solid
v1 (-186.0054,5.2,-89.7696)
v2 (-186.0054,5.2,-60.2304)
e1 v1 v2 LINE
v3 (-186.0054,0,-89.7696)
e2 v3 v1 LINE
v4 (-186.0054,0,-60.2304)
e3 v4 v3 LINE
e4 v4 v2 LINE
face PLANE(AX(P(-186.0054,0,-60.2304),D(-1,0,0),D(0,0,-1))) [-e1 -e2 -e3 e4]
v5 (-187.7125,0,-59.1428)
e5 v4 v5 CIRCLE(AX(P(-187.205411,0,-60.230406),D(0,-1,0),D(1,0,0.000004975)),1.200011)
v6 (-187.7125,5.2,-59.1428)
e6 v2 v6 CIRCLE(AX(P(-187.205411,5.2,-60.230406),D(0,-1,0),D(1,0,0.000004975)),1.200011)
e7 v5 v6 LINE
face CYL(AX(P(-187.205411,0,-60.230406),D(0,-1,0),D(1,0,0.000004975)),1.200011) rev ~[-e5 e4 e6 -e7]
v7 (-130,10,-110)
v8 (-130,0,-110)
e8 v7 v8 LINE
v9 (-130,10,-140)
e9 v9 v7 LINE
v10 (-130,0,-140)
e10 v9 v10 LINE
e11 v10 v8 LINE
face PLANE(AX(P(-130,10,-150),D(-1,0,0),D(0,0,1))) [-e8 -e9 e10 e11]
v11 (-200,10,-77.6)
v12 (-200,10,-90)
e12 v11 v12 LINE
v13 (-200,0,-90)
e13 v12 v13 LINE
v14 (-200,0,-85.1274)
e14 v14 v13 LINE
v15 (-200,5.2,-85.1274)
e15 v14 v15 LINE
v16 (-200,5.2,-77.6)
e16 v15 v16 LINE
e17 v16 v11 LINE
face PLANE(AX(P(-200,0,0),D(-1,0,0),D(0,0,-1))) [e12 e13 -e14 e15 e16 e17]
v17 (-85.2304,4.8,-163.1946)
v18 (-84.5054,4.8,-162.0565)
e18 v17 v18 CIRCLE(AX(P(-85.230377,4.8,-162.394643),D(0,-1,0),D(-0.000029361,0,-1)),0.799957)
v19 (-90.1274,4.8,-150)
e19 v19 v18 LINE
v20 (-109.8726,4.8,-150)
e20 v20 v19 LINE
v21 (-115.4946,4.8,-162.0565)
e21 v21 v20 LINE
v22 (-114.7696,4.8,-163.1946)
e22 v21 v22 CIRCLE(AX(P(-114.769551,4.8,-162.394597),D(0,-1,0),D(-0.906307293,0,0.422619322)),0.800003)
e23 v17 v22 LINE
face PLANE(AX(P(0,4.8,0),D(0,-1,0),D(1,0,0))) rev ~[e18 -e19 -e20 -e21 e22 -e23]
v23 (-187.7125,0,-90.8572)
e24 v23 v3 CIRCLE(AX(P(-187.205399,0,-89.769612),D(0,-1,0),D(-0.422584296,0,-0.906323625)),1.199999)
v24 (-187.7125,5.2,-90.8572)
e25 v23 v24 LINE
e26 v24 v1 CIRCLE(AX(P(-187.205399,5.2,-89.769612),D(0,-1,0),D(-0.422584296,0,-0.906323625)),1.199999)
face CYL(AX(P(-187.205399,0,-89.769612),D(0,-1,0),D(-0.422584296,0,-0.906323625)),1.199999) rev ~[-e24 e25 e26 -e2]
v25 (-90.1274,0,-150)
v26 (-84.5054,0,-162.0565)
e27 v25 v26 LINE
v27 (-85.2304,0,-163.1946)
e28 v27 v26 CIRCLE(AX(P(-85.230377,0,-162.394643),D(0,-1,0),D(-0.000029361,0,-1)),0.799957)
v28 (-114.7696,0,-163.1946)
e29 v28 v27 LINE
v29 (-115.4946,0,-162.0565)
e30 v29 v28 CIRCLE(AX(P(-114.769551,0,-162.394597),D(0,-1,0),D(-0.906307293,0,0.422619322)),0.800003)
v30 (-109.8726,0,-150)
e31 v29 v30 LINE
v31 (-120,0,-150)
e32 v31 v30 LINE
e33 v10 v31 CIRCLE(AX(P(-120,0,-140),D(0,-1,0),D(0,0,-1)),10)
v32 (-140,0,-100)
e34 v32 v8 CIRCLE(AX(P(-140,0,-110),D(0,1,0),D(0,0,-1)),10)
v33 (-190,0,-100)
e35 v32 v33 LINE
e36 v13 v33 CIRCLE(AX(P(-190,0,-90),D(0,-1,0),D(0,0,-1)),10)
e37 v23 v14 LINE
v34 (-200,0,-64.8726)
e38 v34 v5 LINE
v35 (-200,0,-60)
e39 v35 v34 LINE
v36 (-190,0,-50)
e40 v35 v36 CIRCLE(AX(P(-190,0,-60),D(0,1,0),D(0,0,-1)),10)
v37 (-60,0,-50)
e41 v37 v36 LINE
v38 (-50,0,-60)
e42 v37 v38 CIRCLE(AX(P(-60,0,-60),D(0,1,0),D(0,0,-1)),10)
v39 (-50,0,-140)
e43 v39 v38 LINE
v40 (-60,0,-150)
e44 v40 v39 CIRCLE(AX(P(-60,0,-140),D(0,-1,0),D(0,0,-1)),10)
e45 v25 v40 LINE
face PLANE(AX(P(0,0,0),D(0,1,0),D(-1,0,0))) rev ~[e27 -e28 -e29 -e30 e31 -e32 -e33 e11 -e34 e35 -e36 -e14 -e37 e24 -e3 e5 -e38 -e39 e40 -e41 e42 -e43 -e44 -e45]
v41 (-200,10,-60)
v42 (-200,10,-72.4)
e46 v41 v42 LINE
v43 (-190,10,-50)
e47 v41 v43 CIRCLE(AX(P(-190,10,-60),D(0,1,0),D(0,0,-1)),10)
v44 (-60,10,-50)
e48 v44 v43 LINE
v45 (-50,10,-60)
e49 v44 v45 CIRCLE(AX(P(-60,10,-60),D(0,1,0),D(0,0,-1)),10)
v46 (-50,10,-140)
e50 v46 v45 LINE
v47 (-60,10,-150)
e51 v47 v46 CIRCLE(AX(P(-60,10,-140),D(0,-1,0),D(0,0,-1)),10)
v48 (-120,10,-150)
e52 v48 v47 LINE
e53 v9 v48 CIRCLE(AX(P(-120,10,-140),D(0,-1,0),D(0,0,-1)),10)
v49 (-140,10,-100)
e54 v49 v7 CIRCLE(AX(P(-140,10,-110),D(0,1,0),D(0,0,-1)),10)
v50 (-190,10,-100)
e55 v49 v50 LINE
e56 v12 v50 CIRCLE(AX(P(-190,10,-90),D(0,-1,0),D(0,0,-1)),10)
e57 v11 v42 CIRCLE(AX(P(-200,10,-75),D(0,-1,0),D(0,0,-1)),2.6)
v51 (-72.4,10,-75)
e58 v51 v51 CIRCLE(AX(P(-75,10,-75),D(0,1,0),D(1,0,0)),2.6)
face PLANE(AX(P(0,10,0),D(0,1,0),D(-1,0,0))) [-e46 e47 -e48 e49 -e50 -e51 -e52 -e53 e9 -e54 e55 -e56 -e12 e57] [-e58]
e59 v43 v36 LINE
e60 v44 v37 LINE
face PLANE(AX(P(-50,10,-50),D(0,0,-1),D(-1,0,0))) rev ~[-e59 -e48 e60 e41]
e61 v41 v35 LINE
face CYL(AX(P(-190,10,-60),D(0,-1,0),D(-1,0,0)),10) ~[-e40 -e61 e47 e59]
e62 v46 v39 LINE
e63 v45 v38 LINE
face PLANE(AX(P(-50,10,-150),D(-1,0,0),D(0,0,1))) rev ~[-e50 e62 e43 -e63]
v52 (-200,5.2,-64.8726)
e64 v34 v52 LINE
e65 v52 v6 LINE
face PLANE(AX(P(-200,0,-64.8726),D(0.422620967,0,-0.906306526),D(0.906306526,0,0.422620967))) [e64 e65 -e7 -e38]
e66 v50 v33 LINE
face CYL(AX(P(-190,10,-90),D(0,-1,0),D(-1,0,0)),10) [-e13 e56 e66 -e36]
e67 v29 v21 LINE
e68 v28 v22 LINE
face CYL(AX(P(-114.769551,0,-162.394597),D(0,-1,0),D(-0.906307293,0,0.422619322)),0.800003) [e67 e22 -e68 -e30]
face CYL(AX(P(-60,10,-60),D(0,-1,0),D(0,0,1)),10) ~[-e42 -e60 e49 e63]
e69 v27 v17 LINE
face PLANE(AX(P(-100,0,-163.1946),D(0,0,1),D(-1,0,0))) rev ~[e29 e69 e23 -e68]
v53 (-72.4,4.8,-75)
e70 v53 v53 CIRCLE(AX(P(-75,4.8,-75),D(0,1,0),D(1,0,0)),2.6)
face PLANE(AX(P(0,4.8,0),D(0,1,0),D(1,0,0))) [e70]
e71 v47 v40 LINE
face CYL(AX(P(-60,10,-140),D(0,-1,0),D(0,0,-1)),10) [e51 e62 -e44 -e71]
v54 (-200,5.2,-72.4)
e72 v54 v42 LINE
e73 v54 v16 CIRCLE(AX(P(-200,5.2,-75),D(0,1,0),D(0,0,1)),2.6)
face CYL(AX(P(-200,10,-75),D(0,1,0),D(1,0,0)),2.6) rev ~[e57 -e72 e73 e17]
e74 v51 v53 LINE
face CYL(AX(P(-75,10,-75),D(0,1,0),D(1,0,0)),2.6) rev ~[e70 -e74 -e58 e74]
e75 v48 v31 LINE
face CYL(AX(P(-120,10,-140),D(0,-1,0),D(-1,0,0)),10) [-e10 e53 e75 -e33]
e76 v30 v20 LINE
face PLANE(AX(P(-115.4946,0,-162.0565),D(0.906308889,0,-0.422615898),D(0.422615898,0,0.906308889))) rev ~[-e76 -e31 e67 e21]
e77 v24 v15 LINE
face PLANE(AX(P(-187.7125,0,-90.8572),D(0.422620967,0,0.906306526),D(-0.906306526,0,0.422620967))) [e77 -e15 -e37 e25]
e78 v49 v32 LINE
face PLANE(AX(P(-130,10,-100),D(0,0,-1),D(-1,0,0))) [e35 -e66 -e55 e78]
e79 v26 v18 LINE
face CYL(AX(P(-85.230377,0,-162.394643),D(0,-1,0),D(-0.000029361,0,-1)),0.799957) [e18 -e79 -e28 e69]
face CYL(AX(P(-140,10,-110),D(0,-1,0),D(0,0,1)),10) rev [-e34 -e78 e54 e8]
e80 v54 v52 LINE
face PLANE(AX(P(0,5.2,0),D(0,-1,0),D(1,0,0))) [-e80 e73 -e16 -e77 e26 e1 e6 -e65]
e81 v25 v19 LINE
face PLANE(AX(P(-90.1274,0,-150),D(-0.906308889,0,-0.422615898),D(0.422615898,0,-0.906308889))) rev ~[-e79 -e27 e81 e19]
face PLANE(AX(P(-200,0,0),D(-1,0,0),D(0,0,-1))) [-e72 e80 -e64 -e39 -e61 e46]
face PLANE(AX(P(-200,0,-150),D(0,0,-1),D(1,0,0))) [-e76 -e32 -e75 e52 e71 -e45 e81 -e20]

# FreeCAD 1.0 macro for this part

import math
import FreeCAD as App
import Part
import Sketcher
from FreeCAD import Vector
Q = App.Units.Quantity


def edges_at(feature, points):
    """Names of the edges that pass closest to the given points."""
    edges = feature.Shape.Edges
    near = lambda p: min(range(len(edges)), key=lambda i: edges[i].distToShape(Part.Vertex(*p))[0])
    return sorted({f"Edge{near(p) + 1}" for p in points})

doc = App.newDocument("Part")
params = doc.addObject("Spreadsheet::Sheet", "Params")
for row, (alias, value) in enumerate([
    ("sketch1_width", "200 mm"),
    ("sketch1_height", "150 mm"),
    ("pad1_length", "10 mm"),
    ("sketch2_radius", "1.2 mm"),
    ("pocket1_length", "5.2 mm"),
    ("sketch3_radius", "0.8 mm"),
    ("pad2_length", "4.8 mm"),
    ("sketch4_diameter", "5.2 mm"),
    ("pocket2_length", "5.2 mm"),
    ("sketch5_width", "50 mm"),
    ("sketch5_width2", "70 mm"),
    ("pocket3_length", "15 mm"),
    ("fillet_radius", "10 mm"),
], start=1):
    params.set(f"A{row}", alias)
    params.set(f"B{row}", "=" + value)
    params.setAlias(f"B{row}", alias)

body = doc.addObject("PartDesign::Body", "Body")

# Sketch on XZ plane
sketch1 = body.newObject("Sketcher::SketchObject", "Sketch")
sketch1.AttachmentSupport = (doc.getObject("XZ_Plane"), [""])
sketch1.MapMode = "FlatFace"
sketch1.addGeometry([
    Part.LineSegment(Vector(-200, 0, 0), Vector(0, 0, 0)),
    Part.LineSegment(Vector(0, 0, 0), Vector(0, -150, 0)),
    Part.LineSegment(Vector(0, -150, 0), Vector(-200, -150, 0)),
    Part.LineSegment(Vector(-200, -150, 0), Vector(-200, 0, 0)),
], False)
sketch1.addConstraint([
    Sketcher.Constraint("Coincident", 0, 2, 1, 1),
    Sketcher.Constraint("Coincident", 1, 2, 2, 1),
    Sketcher.Constraint("Coincident", 2, 2, 3, 1),
    Sketcher.Constraint("Coincident", 3, 2, 0, 1),
    Sketcher.Constraint("Horizontal", 0),
    Sketcher.Constraint("Vertical", 1),
    Sketcher.Constraint("Horizontal", 2),
    Sketcher.Constraint("Vertical", 3),
    Sketcher.Constraint("Coincident", 0, 2, -1, 1),
    Sketcher.Constraint("DistanceX", 0, 1, 0, 2, Q("200 mm")),
    Sketcher.Constraint("DistanceY", 1, 2, 1, 1, Q("150 mm")),
])
sketch1.setExpression("Constraints[9]", "Params.sketch1_width")
sketch1.setExpression("Constraints[10]", "Params.sketch1_height")
pad1 = body.newObject("PartDesign::Pad", "Pad")
pad1.Profile = sketch1
pad1.setExpression("Length", "Params.pad1_length")
pad1.Reversed = True

# Sketch on XZ plane
sketch2 = body.newObject("Sketcher::SketchObject", "Sketch001")
sketch2.AttachmentSupport = (doc.getObject("XZ_Plane"), [""])
sketch2.MapMode = "FlatFace"
sketch2.addGeometry([
    Part.LineSegment(Vector(-200, -85.1, 0), Vector(-187.7, -90.9, 0)),  # 0
    Part.ArcOfCircle(Part.Circle(Vector(-187.2, -89.8, 0), Vector(0, 0, 1), 1.2), math.radians(-115), math.radians(0)),  # 1
    Part.LineSegment(Vector(-186, -89.8, 0), Vector(-186, -60.2, 0)),  # 2
    Part.ArcOfCircle(Part.Circle(Vector(-187.2, -60.2, 0), Vector(0, 0, 1), 1.2), math.radians(0), math.radians(115)),  # 3
    Part.LineSegment(Vector(-187.7, -59.1, 0), Vector(-200, -64.9, 0)),  # 4
    Part.LineSegment(Vector(-200, -64.9, 0), Vector(-200, -85.1, 0)),  # 5
], False)
sketch2.addConstraint([
    Sketcher.Constraint("Tangent", 0, 2, 1, 1),
    Sketcher.Constraint("Tangent", 1, 2, 2, 1),
    Sketcher.Constraint("Tangent", 2, 2, 3, 1),
    Sketcher.Constraint("Tangent", 3, 2, 4, 1),
    Sketcher.Constraint("Coincident", 4, 2, 5, 1),
    Sketcher.Constraint("Coincident", 5, 2, 0, 1),
    Sketcher.Constraint("Vertical", 2),
    Sketcher.Constraint("Vertical", 5),
    Sketcher.Constraint("Equal", 1, 3),
    Sketcher.Constraint("Vertical", 0, 2, 3, 2),
    Sketcher.Constraint("Radius", 1, Q("1.2 mm")),
    Sketcher.Constraint("Angle", 0, Q("-25.0002 deg")),
    Sketcher.Constraint("DistanceX", 4, 2, -1, 1, Q("200 mm")),
    Sketcher.Constraint("DistanceY", 2, 1, 2, 2, Q("29.5392 mm")),
    Sketcher.Constraint("DistanceY", 5, 2, 5, 1, Q("20.2548 mm")),
    Sketcher.Constraint("DistanceY", 1, 3, -1, 1, Q("89.7696 mm")),
])
sketch2.setExpression("Constraints[10]", "Params.sketch2_radius")
pocket1 = body.newObject("PartDesign::Pocket", "Pocket")
pocket1.Profile = sketch2
pocket1.setExpression("Length", "Params.pocket1_length")

# Sketch on XZ plane
sketch3 = body.newObject("Sketcher::SketchObject", "Sketch002")
sketch3.AttachmentSupport = (doc.getObject("XZ_Plane"), [""])
sketch3.MapMode = "FlatFace"
sketch3.addGeometry([
    Part.LineSegment(Vector(-114.8, -163.2, 0), Vector(-85.2, -163.2, 0)),  # 0
    Part.ArcOfCircle(Part.Circle(Vector(-85.2, -162.4, 0), Vector(0, 0, 1), 0.8), math.radians(-90), math.radians(25)),  # 1
    Part.LineSegment(Vector(-84.5, -162.1, 0), Vector(-90.1, -150, 0)),  # 2
    Part.LineSegment(Vector(-90.1, -150, 0), Vector(-109.9, -150, 0)),  # 3
    Part.LineSegment(Vector(-109.9, -150, 0), Vector(-115.5, -162.1, 0)),  # 4
    Part.ArcOfCircle(Part.Circle(Vector(-114.8, -162.4, 0), Vector(0, 0, 1), 0.8), math.radians(155), math.radians(270)),  # 5
], False)
sketch3.addConstraint([
    Sketcher.Constraint("Tangent", 0, 2, 1, 1),
    Sketcher.Constraint("Tangent", 1, 2, 2, 1),
    Sketcher.Constraint("Coincident", 2, 2, 3, 1),
    Sketcher.Constraint("Coincident", 3, 2, 4, 1),
    Sketcher.Constraint("Tangent", 4, 2, 5, 1),
    Sketcher.Constraint("Tangent", 5, 2, 0, 1),
    Sketcher.Constraint("Horizontal", 0),
    Sketcher.Constraint("Horizontal", 3),
    Sketcher.Constraint("Equal", 1, 5),
    Sketcher.Constraint("Horizontal", 1, 2, 4, 2),
    Sketcher.Constraint("Radius", 1, Q("0.8 mm")),
    Sketcher.Constraint("Angle", 2, Q("114.9999 deg")),
    Sketcher.Constraint("DistanceY", 2, 2, -1, 1, Q("150 mm")),
    Sketcher.Constraint("DistanceX", 0, 1, 0, 2, Q("29.5392 mm")),
    Sketcher.Constraint("DistanceX", 3, 2, 3, 1, Q("19.7452 mm")),
    Sketcher.Constraint("DistanceX", 1, 3, -1, 1, Q("85.2304 mm")),
])
sketch3.setExpression("Constraints[10]", "Params.sketch3_radius")
pad2 = body.newObject("PartDesign::Pad", "Pad001")
pad2.Profile = sketch3
pad2.setExpression("Length", "Params.pad2_length")
pad2.Reversed = True

# Sketch on XZ plane
sketch4 = body.newObject("Sketcher::SketchObject", "Sketch003")
sketch4.AttachmentSupport = (doc.getObject("XZ_Plane"), [""])
sketch4.MapMode = "FlatFace"
sketch4.AttachmentOffset = App.Placement(Vector(0, 0, -10), App.Rotation())
sketch4.addGeometry([
    Part.Circle(Vector(-200, -75, 0), Vector(0, 0, 1), 2.6),
    Part.Circle(Vector(-75, -75, 0), Vector(0, 0, 1), 2.6),
], False)
sketch4.addConstraint([
    Sketcher.Constraint("Equal", 0, 1),
    Sketcher.Constraint("Horizontal", 0, 3, 1, 3),
    Sketcher.Constraint("Diameter", 0, Q("5.2 mm")),
    Sketcher.Constraint("DistanceY", 0, 3, -1, 1, Q("75 mm")),
    Sketcher.Constraint("DistanceX", 1, 3, -1, 1, Q("75 mm")),
    Sketcher.Constraint("DistanceX", 0, 3, -1, 1, Q("200 mm")),
])
sketch4.setExpression("Constraints[2]", "Params.sketch4_diameter")
pocket2 = body.newObject("PartDesign::Pocket", "Pocket001")
pocket2.Profile = sketch4
pocket2.setExpression("Length", "Params.pocket2_length")
pocket2.Reversed = True

# Sketch on XZ plane
sketch5 = body.newObject("Sketcher::SketchObject", "Sketch004")
sketch5.AttachmentSupport = (doc.getObject("XZ_Plane"), [""])
sketch5.MapMode = "FlatFace"
sketch5.AttachmentOffset = App.Placement(Vector(0, 0, -10), App.Rotation())
sketch5.addGeometry([
    Part.LineSegment(Vector(-200, -50, 0), Vector(-200, 0, 0)),  # 0
    Part.LineSegment(Vector(-200, 0, 0), Vector(0, 0, 0)),  # 1
    Part.LineSegment(Vector(0, 0, 0), Vector(0, -150, 0)),  # 2
    Part.LineSegment(Vector(0, -150, 0), Vector(-50, -150, 0)),  # 3
    Part.LineSegment(Vector(-50, -150, 0), Vector(-50, -50, 0)),  # 4
    Part.LineSegment(Vector(-50, -50, 0), Vector(-200, -50, 0)),  # 5
    Part.LineSegment(Vector(-130, -150, 0), Vector(-200, -150, 0)),  # 6
    Part.LineSegment(Vector(-200, -150, 0), Vector(-200, -100, 0)),  # 7
    Part.LineSegment(Vector(-200, -100, 0), Vector(-130, -100, 0)),  # 8
    Part.LineSegment(Vector(-130, -100, 0), Vector(-130, -150, 0)),  # 9
], False)
sketch5.addConstraint([
    Sketcher.Constraint("Coincident", 0, 2, 1, 1),
    Sketcher.Constraint("Coincident", 1, 2, 2, 1),
    Sketcher.Constraint("Coincident", 2, 2, 3, 1),
    Sketcher.Constraint("Coincident", 3, 2, 4, 1),
    Sketcher.Constraint("Coincident", 4, 2, 5, 1),
    Sketcher.Constraint("Coincident", 5, 2, 0, 1),
    Sketcher.Constraint("Coincident", 6, 2, 7, 1),
    Sketcher.Constraint("Coincident", 7, 2, 8, 1),
    Sketcher.Constraint("Coincident", 8, 2, 9, 1),
    Sketcher.Constraint("Coincident", 9, 2, 6, 1),
    Sketcher.Constraint("Vertical", 0),
    Sketcher.Constraint("Horizontal", 1),
    Sketcher.Constraint("Vertical", 2),
    Sketcher.Constraint("Horizontal", 3),
    Sketcher.Constraint("Vertical", 4),
    Sketcher.Constraint("Horizontal", 5),
    Sketcher.Constraint("Horizontal", 6),
    Sketcher.Constraint("Vertical", 7),
    Sketcher.Constraint("Horizontal", 8),
    Sketcher.Constraint("Vertical", 9),
    Sketcher.Constraint("Coincident", 1, 2, -1, 1),
    Sketcher.Constraint("Horizontal", 3, 2, 6, 2),
    Sketcher.Constraint("Vertical", 5, 2, 6, 2),
    Sketcher.Constraint("Equal", 3, 0),
    Sketcher.Constraint("Equal", 5, 2),
    Sketcher.Constraint("Equal", 0, 7),
    Sketcher.Constraint("DistanceX", 3, 2, 3, 1, Q("50 mm")),
    Sketcher.Constraint("DistanceX", 6, 2, 6, 1, Q("70 mm")),
    Sketcher.Constraint("DistanceY", 7, 2, 5, 2, Q("50 mm")),
])
sketch5.setExpression("Constraints[26]", "Params.sketch5_width")
sketch5.setExpression("Constraints[27]", "Params.sketch5_width2")
pocket3 = body.newObject("PartDesign::Pocket", "Pocket002")
pocket3.Profile = sketch5
pocket3.setExpression("Length", "Params.pocket3_length")
pocket3.Reversed = True
doc.recompute()

fillet = body.newObject("PartDesign::Fillet", "Fillet")
fillet.Base = (pocket3, edges_at(pocket3, [
    (-50, 5, -150),
    (-130, 5, -150),
    (-200, 5, -100),
    (-130, 5, -100),
    (-200, 5, -50),
    (-50, 5, -50),
]))
fillet.setExpression("Radius", "Params.fillet_radius")

doc.recompute()
